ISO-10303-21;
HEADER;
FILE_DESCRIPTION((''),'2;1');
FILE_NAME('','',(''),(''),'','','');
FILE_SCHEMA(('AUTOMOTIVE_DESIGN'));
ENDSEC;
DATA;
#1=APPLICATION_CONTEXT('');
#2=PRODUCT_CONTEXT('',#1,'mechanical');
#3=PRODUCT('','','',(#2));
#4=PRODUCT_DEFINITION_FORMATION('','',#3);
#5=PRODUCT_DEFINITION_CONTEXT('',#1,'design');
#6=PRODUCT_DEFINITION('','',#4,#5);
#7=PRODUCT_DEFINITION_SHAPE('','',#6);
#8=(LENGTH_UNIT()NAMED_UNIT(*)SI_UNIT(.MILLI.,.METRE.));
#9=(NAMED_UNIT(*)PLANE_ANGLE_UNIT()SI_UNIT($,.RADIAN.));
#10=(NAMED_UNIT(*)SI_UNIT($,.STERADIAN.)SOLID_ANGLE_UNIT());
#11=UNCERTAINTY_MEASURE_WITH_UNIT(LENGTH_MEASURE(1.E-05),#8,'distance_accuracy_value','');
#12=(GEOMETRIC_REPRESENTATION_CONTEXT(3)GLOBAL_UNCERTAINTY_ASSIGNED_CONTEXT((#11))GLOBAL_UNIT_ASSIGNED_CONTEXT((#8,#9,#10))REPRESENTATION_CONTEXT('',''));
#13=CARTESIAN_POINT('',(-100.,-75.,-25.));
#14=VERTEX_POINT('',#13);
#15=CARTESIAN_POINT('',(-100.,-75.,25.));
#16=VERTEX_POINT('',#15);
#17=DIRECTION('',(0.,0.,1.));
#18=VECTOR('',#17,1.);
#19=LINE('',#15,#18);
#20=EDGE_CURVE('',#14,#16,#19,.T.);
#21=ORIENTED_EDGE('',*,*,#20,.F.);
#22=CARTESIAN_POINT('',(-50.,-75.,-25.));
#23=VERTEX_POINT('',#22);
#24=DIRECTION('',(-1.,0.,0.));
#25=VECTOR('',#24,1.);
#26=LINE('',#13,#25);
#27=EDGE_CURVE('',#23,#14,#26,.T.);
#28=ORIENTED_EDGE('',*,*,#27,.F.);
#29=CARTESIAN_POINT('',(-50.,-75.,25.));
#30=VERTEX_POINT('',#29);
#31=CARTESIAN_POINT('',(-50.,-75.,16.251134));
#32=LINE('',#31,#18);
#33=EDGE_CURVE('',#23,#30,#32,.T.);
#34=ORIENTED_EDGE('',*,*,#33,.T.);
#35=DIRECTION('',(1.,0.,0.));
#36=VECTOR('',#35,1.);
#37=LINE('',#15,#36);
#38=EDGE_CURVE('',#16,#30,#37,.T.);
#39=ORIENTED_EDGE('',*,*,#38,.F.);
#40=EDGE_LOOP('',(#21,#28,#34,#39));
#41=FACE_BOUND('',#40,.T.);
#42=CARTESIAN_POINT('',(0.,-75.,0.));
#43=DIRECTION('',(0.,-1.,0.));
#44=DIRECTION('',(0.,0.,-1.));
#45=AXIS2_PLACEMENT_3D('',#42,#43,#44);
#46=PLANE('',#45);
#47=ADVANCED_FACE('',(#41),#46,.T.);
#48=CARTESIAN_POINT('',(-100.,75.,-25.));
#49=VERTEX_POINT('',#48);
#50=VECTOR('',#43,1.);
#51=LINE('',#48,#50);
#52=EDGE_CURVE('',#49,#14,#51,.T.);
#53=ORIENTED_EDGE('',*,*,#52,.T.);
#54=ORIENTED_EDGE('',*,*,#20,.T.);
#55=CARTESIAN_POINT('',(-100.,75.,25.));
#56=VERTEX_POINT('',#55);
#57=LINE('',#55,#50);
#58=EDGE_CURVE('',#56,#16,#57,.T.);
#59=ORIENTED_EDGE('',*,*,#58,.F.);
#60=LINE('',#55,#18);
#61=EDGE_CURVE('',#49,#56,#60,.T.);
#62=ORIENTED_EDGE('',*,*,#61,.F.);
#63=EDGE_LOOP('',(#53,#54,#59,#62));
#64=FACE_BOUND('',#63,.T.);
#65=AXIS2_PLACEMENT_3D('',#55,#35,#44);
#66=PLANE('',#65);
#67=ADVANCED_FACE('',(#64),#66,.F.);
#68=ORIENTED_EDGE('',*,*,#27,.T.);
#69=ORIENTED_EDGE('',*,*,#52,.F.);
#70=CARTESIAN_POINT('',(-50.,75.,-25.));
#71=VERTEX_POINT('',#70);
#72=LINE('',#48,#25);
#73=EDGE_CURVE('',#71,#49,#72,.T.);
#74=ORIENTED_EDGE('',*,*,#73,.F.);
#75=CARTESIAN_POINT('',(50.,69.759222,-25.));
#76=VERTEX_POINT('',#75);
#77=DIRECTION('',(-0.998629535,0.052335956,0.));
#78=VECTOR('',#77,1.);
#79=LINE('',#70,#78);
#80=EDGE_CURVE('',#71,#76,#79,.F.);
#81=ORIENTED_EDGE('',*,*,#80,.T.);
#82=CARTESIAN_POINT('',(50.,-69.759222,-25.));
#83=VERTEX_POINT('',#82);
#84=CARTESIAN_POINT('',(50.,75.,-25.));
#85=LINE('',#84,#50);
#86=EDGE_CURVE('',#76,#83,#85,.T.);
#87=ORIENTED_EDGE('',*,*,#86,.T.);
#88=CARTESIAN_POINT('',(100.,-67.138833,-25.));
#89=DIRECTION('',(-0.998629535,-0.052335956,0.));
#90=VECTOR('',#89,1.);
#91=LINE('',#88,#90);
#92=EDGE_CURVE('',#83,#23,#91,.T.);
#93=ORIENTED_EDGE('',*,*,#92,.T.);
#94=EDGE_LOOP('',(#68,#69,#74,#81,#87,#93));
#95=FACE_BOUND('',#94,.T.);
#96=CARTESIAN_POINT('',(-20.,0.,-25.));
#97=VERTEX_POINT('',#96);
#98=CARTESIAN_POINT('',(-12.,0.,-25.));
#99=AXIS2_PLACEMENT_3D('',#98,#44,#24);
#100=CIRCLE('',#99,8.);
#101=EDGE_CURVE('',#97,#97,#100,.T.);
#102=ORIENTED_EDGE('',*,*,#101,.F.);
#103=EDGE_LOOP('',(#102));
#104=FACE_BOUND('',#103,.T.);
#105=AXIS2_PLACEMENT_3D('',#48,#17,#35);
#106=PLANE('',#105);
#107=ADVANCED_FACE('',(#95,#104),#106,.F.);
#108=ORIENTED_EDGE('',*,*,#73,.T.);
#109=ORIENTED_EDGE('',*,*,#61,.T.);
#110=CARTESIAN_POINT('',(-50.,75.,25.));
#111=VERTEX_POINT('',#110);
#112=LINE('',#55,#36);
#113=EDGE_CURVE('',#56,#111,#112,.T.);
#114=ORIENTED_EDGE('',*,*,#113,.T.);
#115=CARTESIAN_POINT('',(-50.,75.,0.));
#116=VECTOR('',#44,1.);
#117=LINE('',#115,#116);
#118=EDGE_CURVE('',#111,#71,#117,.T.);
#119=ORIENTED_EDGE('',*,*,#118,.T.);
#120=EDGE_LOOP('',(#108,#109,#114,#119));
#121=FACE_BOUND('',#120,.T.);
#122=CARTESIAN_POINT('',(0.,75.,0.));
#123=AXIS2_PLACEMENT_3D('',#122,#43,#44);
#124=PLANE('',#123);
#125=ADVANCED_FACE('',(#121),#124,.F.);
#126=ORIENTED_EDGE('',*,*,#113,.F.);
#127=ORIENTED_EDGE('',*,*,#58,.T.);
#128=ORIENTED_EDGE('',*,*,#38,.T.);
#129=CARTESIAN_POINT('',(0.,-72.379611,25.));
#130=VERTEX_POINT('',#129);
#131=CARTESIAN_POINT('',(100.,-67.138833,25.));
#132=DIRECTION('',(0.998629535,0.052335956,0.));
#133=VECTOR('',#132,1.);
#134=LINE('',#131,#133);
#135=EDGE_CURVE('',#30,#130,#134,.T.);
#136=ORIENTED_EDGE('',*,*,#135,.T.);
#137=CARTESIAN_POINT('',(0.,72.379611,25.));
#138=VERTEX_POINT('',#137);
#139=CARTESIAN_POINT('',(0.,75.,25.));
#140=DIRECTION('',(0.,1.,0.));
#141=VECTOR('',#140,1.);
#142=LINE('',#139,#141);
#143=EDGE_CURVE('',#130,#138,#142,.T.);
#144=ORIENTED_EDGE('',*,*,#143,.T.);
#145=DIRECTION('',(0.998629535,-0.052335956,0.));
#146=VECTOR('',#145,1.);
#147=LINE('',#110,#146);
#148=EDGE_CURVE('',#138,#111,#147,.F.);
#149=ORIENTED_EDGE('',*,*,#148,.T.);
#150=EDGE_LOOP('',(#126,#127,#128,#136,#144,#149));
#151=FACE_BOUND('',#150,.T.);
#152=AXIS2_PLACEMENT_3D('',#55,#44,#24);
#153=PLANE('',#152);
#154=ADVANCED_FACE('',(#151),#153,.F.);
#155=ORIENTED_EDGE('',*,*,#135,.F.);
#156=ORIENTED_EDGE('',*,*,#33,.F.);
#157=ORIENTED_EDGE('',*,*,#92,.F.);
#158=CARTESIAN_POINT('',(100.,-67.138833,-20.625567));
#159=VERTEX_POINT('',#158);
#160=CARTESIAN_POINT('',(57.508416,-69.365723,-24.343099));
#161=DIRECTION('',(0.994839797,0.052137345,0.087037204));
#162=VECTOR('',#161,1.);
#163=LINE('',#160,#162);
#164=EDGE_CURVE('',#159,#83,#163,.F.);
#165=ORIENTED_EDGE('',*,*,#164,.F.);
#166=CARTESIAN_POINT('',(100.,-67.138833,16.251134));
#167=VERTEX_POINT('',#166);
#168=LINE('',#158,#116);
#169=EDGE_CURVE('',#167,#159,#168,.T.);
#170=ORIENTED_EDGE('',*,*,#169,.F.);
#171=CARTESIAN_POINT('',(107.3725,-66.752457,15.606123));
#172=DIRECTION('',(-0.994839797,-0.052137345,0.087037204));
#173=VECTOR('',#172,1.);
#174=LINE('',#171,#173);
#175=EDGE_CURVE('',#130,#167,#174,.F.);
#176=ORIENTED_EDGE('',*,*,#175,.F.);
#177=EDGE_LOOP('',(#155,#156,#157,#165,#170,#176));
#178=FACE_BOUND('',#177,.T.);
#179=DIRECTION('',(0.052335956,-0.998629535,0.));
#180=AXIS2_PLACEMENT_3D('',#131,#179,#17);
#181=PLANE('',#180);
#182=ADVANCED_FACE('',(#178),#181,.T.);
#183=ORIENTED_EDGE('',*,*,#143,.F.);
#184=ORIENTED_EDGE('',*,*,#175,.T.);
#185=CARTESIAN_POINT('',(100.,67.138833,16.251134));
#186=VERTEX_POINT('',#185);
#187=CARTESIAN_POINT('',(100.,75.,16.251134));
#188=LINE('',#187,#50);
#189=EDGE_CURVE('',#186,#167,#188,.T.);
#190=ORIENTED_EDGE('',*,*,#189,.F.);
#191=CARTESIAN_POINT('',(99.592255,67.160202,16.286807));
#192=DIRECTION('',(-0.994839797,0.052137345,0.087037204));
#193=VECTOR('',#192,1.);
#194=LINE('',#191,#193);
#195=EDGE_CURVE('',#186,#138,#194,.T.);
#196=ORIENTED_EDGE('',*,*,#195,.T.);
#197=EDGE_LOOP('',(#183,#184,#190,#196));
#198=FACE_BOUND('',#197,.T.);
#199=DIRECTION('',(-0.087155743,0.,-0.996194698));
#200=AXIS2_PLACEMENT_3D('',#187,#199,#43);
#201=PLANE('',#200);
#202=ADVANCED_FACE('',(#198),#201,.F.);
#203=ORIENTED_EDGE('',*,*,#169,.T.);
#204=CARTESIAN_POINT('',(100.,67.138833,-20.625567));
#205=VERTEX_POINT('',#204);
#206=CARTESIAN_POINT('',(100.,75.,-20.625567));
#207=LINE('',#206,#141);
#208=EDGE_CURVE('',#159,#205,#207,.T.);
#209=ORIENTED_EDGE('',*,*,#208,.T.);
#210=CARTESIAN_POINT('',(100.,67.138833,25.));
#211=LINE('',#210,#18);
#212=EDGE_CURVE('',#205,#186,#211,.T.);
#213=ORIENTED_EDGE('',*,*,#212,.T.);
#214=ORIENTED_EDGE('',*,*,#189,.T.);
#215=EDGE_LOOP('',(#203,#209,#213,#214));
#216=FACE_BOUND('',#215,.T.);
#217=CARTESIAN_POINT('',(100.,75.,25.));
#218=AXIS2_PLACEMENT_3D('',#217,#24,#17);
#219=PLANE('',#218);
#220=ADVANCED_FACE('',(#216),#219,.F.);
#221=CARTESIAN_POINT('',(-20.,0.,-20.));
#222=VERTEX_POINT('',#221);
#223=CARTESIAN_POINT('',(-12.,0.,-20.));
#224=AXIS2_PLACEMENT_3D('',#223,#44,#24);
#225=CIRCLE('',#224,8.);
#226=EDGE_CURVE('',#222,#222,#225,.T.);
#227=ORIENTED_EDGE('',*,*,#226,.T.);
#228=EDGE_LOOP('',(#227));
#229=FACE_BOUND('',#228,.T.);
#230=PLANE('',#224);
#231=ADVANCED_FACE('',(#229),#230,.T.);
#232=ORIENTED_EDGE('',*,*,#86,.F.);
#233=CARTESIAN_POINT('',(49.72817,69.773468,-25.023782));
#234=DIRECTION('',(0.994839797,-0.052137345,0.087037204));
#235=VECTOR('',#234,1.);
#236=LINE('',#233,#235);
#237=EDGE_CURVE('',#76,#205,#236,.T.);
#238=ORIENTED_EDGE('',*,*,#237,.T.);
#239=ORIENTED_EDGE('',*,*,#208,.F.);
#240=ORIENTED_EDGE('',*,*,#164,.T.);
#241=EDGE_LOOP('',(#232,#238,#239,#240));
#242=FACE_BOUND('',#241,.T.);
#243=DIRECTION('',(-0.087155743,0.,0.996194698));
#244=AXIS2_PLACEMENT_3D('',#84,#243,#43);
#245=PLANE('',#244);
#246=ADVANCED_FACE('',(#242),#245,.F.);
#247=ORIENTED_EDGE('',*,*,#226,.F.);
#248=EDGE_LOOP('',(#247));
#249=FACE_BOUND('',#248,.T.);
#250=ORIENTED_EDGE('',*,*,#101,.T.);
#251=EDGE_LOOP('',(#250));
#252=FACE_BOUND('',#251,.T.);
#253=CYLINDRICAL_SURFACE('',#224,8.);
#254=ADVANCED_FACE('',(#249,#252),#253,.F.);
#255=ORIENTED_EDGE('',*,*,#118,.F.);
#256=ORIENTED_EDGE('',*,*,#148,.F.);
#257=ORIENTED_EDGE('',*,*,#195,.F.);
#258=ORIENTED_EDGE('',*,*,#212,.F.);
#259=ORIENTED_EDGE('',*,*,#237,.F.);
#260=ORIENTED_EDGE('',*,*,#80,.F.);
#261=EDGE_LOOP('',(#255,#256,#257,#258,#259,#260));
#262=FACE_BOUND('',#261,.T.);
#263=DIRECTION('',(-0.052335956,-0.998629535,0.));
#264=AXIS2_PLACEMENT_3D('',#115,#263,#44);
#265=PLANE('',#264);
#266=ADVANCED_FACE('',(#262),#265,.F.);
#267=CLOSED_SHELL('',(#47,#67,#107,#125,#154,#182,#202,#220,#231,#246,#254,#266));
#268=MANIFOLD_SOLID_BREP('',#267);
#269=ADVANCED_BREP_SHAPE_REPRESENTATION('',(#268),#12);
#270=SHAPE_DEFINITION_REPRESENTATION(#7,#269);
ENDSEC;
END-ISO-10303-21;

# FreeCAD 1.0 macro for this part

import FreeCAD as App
import Part
import Sketcher
Q = App.Units.Quantity


def edges_at(feature, points):
    """Names of the edges that pass closest to the given points."""
    edges = feature.Shape.Edges
    near = lambda p: min(range(len(edges)), key=lambda i: edges[i].distToShape(Part.Vertex(*p))[0])
    return sorted({f"Edge{near(p) + 1}" for p in points})


def add_polygon(sketch, points):
    """Adds a closed chain of lines whose ends are joined by coincident constraints."""
    first, n = sketch.GeometryCount, len(points)
    for a, b in zip(points, points[1:] + points[:1]):
        sketch.addGeometry(Part.LineSegment(App.Vector(*a, 0), App.Vector(*b, 0)), False)
    for i in range(n):
        sketch.addConstraint(Sketcher.Constraint("Coincident", first + i, 2, first + (i + 1) % n, 1))

doc = App.newDocument("Part")
body = doc.addObject("PartDesign::Body", "Body")

sketch1 = body.newObject("Sketcher::SketchObject", "Sketch")
sketch1.AttachmentSupport = (doc.getObject("XZ_Plane"), [""])
sketch1.MapMode = "FlatFace"
add_polygon(sketch1, [(-100, -25), (-100, 25), (100, 25), (100, -25)])
sketch1.addConstraint(Sketcher.Constraint("Vertical", 0))
sketch1.addConstraint(Sketcher.Constraint("Horizontal", 1))
sketch1.addConstraint(Sketcher.Constraint("Vertical", 2))
sketch1.addConstraint(Sketcher.Constraint("Horizontal", 3))
sketch1.addConstraint(Sketcher.Constraint("Symmetric", 0, 2, 2, 2, -1, 1))
sketch1.addConstraint(Sketcher.Constraint("DistanceX", 1, 1, 1, 2, Q("200 mm")))
sketch1.addConstraint(Sketcher.Constraint("DistanceY", 0, 1, 0, 2, Q("50 mm")))
pad1 = body.newObject("PartDesign::Pad", "Pad")
pad1.Profile = sketch1
pad1.Length = 150
pad1.Midplane = True
doc.recompute()

chamfer = body.newObject("PartDesign::Chamfer", "Chamfer")
chamfer.Base = (pad1, edges_at(pad1, [(100, 0, 25)]))
chamfer.ChamferType = "Two distances"
chamfer.Size = 100
chamfer.Size2 = 8.748866
doc.recompute()

chamfer2 = body.newObject("PartDesign::Chamfer", "Chamfer001")
chamfer2.Base = (chamfer, edges_at(chamfer, [(100, 0, -25)]))
chamfer2.ChamferType = "Two distances"
chamfer2.Size = 50
chamfer2.Size2 = 4.374433
chamfer2.FlipDirection = True
doc.recompute()

chamfer3 = body.newObject("PartDesign::Chamfer", "Chamfer002")
chamfer3.Base = (chamfer2, edges_at(chamfer2, [(100, -75, -2.187)]))
chamfer3.ChamferType = "Two distances"
chamfer3.Size = 150
chamfer3.Size2 = 7.861167
chamfer3.FlipDirection = True
doc.recompute()

chamfer4 = body.newObject("PartDesign::Chamfer", "Chamfer003")
chamfer4.Base = (chamfer3, edges_at(chamfer3, [(100, 75, -2.187)]))
chamfer4.ChamferType = "Two distances"
chamfer4.Size = 150
chamfer4.Size2 = 7.861167
chamfer4.FlipDirection = True

sketch2 = body.newObject("Sketcher::SketchObject", "Sketch001")
sketch2.AttachmentSupport = (doc.getObject("XY_Plane"), [""])
sketch2.MapMode = "FlatFace"
sketch2.AttachmentOffset = App.Placement(App.Vector(0, 0, -25), App.Rotation())
sketch2.addGeometry(Part.Circle(App.Vector(-12, 0, 0), App.Vector(0, 0, 1), 8), False)
sketch2.addConstraint(Sketcher.Constraint("PointOnObject", 0, 3, -1))
sketch2.addConstraint(Sketcher.Constraint("Diameter", 0, Q("16 mm")))
sketch2.addConstraint(Sketcher.Constraint("DistanceX", 0, 3, -1, 1, Q("12 mm")))
pocket1 = body.newObject("PartDesign::Pocket", "Pocket")
pocket1.Profile = sketch2
pocket1.Length = 5
pocket1.Reversed = True

doc.recompute()
